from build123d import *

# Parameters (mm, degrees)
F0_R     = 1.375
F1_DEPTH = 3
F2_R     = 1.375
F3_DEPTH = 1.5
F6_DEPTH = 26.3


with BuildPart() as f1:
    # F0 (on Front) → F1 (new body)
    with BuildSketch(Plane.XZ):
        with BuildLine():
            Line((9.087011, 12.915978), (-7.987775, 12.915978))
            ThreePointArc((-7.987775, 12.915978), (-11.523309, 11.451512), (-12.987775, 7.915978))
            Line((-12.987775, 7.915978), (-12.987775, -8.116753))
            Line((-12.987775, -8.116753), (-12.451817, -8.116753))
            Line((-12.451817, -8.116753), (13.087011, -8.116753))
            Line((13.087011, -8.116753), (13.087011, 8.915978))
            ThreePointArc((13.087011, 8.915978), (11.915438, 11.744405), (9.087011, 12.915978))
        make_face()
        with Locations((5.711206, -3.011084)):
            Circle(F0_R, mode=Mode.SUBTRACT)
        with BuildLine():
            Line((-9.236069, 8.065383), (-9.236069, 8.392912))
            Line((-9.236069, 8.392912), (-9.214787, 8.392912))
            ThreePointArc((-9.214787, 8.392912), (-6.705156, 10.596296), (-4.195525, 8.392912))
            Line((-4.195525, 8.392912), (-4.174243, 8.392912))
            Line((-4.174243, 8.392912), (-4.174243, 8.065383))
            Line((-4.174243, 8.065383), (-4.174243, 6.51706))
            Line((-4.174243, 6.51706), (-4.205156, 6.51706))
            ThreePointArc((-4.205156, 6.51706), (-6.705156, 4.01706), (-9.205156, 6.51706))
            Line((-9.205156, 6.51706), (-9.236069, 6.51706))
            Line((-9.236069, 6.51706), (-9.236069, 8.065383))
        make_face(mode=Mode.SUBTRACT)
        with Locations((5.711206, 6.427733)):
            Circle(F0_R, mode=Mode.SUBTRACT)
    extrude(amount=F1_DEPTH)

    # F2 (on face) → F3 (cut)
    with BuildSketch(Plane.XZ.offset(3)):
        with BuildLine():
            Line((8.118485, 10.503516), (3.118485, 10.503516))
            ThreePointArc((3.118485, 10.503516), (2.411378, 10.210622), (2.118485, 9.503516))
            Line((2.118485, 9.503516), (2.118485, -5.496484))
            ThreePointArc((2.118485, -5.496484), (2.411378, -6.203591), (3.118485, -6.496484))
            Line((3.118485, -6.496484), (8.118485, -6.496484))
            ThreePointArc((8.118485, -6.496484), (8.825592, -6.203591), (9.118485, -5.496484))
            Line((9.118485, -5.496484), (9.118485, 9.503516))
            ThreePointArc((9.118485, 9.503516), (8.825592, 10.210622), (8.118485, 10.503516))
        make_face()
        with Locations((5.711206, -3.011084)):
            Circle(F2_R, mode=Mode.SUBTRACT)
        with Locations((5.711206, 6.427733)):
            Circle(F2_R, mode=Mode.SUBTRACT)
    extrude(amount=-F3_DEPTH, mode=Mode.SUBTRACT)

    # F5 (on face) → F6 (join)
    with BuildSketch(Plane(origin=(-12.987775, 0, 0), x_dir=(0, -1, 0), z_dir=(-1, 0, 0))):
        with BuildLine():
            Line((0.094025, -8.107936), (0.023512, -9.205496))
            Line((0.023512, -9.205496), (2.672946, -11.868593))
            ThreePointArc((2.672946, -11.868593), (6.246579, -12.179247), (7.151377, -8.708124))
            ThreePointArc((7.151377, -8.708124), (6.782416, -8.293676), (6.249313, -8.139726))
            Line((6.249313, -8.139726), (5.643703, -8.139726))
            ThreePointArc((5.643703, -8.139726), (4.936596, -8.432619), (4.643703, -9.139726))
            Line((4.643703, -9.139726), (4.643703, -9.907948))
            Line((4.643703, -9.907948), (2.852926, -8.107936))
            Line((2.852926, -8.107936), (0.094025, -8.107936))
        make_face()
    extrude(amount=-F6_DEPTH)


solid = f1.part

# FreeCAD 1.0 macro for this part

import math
import FreeCAD as App
import Part
import Sketcher

V = App.Vector
Q = App.Units.Quantity

doc = App.newDocument("Part")
body = doc.addObject("PartDesign::Body", "Body")

# Sketch on XZ plane
sketch1 = body.newObject("Sketcher::SketchObject", "Sketch")
sketch1.AttachmentSupport = (doc.getObject("XZ_Plane"), [""])
sketch1.MapMode = "FlatFace"
sketch1.addGeometry([
    Part.LineSegment(V(9.087, 12.916, 0), V(-7.988, 12.916, 0)),  # 0
    Part.ArcOfCircle(Part.Circle(V(-7.988, 7.916, 0), V(0, 0, 1), 5), math.radians(90), math.radians(180)),  # 1
    Part.LineSegment(V(-12.988, 7.916, 0), V(-12.988, -8.117, 0)),  # 2
    Part.LineSegment(V(-12.988, -8.117, 0), V(13.087, -8.117, 0)),  # 3
    Part.LineSegment(V(13.087, -8.117, 0), V(13.087, 8.916, 0)),  # 4
    Part.ArcOfCircle(Part.Circle(V(9.087, 8.916, 0), V(0, 0, 1), 4), math.radians(0), math.radians(90)),  # 5
    Part.Circle(V(5.711, -3.011, 0), V(0, 0, 1), 1.375),  # 6
    Part.LineSegment(V(-9.236, 6.517, 0), V(-9.236, 8.393, 0)),  # 7
    Part.LineSegment(V(-9.236, 8.393, 0), V(-9.215, 8.393, 0)),  # 8
    Part.ArcOfCircle(Part.Circle(V(-6.705, 8.065, 0), V(0, 0, 1), 2.531), math.radians(7), math.radians(173)),  # 9
    Part.LineSegment(V(-4.196, 8.393, 0), V(-4.174, 8.393, 0)),  # 10
    Part.LineSegment(V(-4.174, 8.393, 0), V(-4.174, 6.517, 0)),  # 11
    Part.LineSegment(V(-4.174, 6.517, 0), V(-4.205, 6.517, 0)),  # 12
    Part.ArcOfCircle(Part.Circle(V(-6.705, 6.517, 0), V(0, 0, 1), 2.5), math.radians(180), math.radians(360)),  # 13
    Part.LineSegment(V(-9.205, 6.517, 0), V(-9.236, 6.517, 0)),  # 14
    Part.Circle(V(5.711, 6.428, 0), V(0, 0, 1), 1.375),  # 15
], False)
sketch1.addConstraint([
    Sketcher.Constraint("Tangent", 0, 2, 1, 1),
    Sketcher.Constraint("Tangent", 1, 2, 2, 1),
    Sketcher.Constraint("Coincident", 2, 2, 3, 1),
    Sketcher.Constraint("Coincident", 3, 2, 4, 1),
    Sketcher.Constraint("Tangent", 4, 2, 5, 1),
    Sketcher.Constraint("Tangent", 5, 2, 0, 1),
    Sketcher.Constraint("Coincident", 7, 2, 8, 1),
    Sketcher.Constraint("Coincident", 8, 2, 9, 2),
    Sketcher.Constraint("Coincident", 9, 1, 10, 1),
    Sketcher.Constraint("Coincident", 10, 2, 11, 1),
    Sketcher.Constraint("Coincident", 11, 2, 12, 1),
    Sketcher.Constraint("Coincident", 12, 2, 13, 2),
    Sketcher.Constraint("Coincident", 13, 1, 14, 1),
    Sketcher.Constraint("Coincident", 14, 2, 7, 1),
    Sketcher.Constraint("Horizontal", 0),
    Sketcher.Constraint("Vertical", 2),
    Sketcher.Constraint("Horizontal", 3),
    Sketcher.Constraint("Vertical", 4),
    Sketcher.Constraint("Vertical", 7),
    Sketcher.Constraint("Horizontal", 8),
    Sketcher.Constraint("Horizontal", 10),
    Sketcher.Constraint("Vertical", 11),
    Sketcher.Constraint("Horizontal", 12),
    Sketcher.Constraint("Horizontal", 14),
    Sketcher.Constraint("Equal", 6, 15),
    Sketcher.Constraint("Horizontal", 8, 2, 9, 1),
    Sketcher.Constraint("Horizontal", 13, 3, 11, 2),
    Sketcher.Constraint("Horizontal", 12, 2, 13, 1),
    Sketcher.Constraint("Vertical", 9, 3, 13, 3),
    Sketcher.Constraint("Vertical", 6, 3, 15, 3),
    Sketcher.Constraint("Equal", 8, 10),
    Sketcher.Constraint("Radius", 1, Q("5 mm")),
    Sketcher.Constraint("Radius", 5, Q("4 mm")),
    Sketcher.Constraint("Radius", 13, Q("2.5 mm")),
    Sketcher.Constraint("Diameter", 6, Q("2.75 mm")),
    Sketcher.Constraint("Radius", 9, Q("2.530914 mm")),
    Sketcher.Constraint("DistanceY", 2, 2, 2, 1, Q("16.032731 mm")),
    Sketcher.Constraint("DistanceX", 0, 2, 0, 1, Q("17.074786 mm")),
    Sketcher.Constraint("DistanceX", 8, 1, 8, 2, Q("0.021282 mm")),
    Sketcher.Constraint("DistanceX", 12, 2, 12, 1, Q("0.030913 mm")),
    Sketcher.Constraint("DistanceY", 7, 1, 7, 2, Q("1.875852 mm")),
    Sketcher.Constraint("DistanceY", -1, 1, 1, 3, Q("7.915978 mm")),
    Sketcher.Constraint("DistanceX", -1, 1, 5, 3, Q("9.087011 mm")),
    Sketcher.Constraint("DistanceY", -1, 1, 13, 3, Q("6.51706 mm")),
    Sketcher.Constraint("DistanceX", 7, 2, -1, 1, Q("9.236069 mm")),
    Sketcher.Constraint("DistanceY", 6, 3, 5, 3, Q("11.927062 mm")),
    Sketcher.Constraint("DistanceX", 1, 3, 6, 3, Q("13.698981 mm")),
    Sketcher.Constraint("DistanceY", 15, 3, 9, 3, Q("1.637649 mm")),
])
pad1 = body.newObject("PartDesign::Pad", "Pad")
pad1.Profile = sketch1
pad1.Length = 3

# Sketch on XZ plane
sketch2 = body.newObject("Sketcher::SketchObject", "Sketch001")
sketch2.AttachmentSupport = (doc.getObject("XZ_Plane"), [""])
sketch2.MapMode = "FlatFace"
sketch2.AttachmentOffset = App.Placement(V(0, 0, 3), App.Rotation())
sketch2.addGeometry([
    Part.LineSegment(V(8.1, 10.5, 0), V(3.1, 10.5, 0)),  # 0
    Part.ArcOfCircle(Part.Circle(V(3.1, 9.5, 0), V(0, 0, 1), 1), math.radians(90), math.radians(180)),  # 1
    Part.LineSegment(V(2.1, 9.5, 0), V(2.1, -5.5, 0)),  # 2
    Part.ArcOfCircle(Part.Circle(V(3.1, -5.5, 0), V(0, 0, 1), 1), math.radians(180), math.radians(270)),  # 3
    Part.LineSegment(V(3.1, -6.5, 0), V(8.1, -6.5, 0)),  # 4
    Part.ArcOfCircle(Part.Circle(V(8.1, -5.5, 0), V(0, 0, 1), 1), math.radians(-90), math.radians(0)),  # 5
    Part.LineSegment(V(9.1, -5.5, 0), V(9.1, 9.5, 0)),  # 6
    Part.ArcOfCircle(Part.Circle(V(8.1, 9.5, 0), V(0, 0, 1), 1), math.radians(0), math.radians(90)),  # 7
    Part.Circle(V(5.7, -3, 0), V(0, 0, 1), 1.4),  # 8
    Part.Circle(V(5.7, 6.4, 0), V(0, 0, 1), 1.4),  # 9
], False)
sketch2.addConstraint([
    Sketcher.Constraint("Tangent", 0, 2, 1, 1),
    Sketcher.Constraint("Tangent", 1, 2, 2, 1),
    Sketcher.Constraint("Tangent", 2, 2, 3, 1),
    Sketcher.Constraint("Tangent", 3, 2, 4, 1),
    Sketcher.Constraint("Tangent", 4, 2, 5, 1),
    Sketcher.Constraint("Tangent", 5, 2, 6, 1),
    Sketcher.Constraint("Tangent", 6, 2, 7, 1),
    Sketcher.Constraint("Tangent", 7, 2, 0, 1),
    Sketcher.Constraint("Horizontal", 0),
    Sketcher.Constraint("Vertical", 2),
    Sketcher.Constraint("Horizontal", 4),
    Sketcher.Constraint("Vertical", 6),
    Sketcher.Constraint("Equal", 1, 3),
    Sketcher.Constraint("Equal", 3, 5),
    Sketcher.Constraint("Equal", 5, 7),
    Sketcher.Constraint("Equal", 8, 9),
    Sketcher.Constraint("Vertical", 8, 3, 9, 3),
    Sketcher.Constraint("Radius", 1, Q("1.000001 mm")),
    Sketcher.Constraint("Diameter", 8, Q("2.75 mm")),
    Sketcher.Constraint("DistanceX", 0, 2, 0, 1, Q("5 mm")),
    Sketcher.Constraint("DistanceY", 2, 2, 2, 1, Q("15 mm")),
    Sketcher.Constraint("DistanceY", 5, 3, 8, 3, Q("2.485401 mm")),
    Sketcher.Constraint("DistanceX", 8, 3, 5, 3, Q("2.40728 mm")),
    Sketcher.Constraint("DistanceX", -1, 1, 1, 3, Q("3.118486 mm")),
    Sketcher.Constraint("DistanceY", -1, 1, 1, 3, Q("9.503515 mm")),
    Sketcher.Constraint("DistanceY", -1, 1, 9, 3, Q("6.427733 mm")),
])
pocket1 = body.newObject("PartDesign::Pocket", "Pocket")
pocket1.Profile = sketch2
pocket1.Length = 1.5

# Sketch on YZ plane
sketch3 = body.newObject("Sketcher::SketchObject", "Sketch002")
sketch3.AttachmentSupport = (doc.getObject("YZ_Plane"), [""])
sketch3.MapMode = "FlatFace"
sketch3.AttachmentOffset = App.Placement(V(0, 0, -12.987775), App.Rotation())
sketch3.addGeometry([
    Part.LineSegment(V(-0.1, -8.1, 0), V(0, -9.2, 0)),  # 0
    Part.LineSegment(V(0, -9.2, 0), V(-2.7, -11.9, 0)),  # 1
    Part.ArcOfCircle(Part.Circle(V(-4.6, -9.9, 0), V(0, 0, 1), 2.8), math.radians(154), math.radians(315)),  # 2
    Part.ArcOfCircle(Part.Circle(V(-6.2, -9.1, 0), V(0, 0, 1), 1), math.radians(90), math.radians(154)),  # 3
    Part.LineSegment(V(-6.2, -8.1, 0), V(-5.6, -8.1, 0)),  # 4
    Part.ArcOfCircle(Part.Circle(V(-5.6, -9.1, 0), V(0, 0, 1), 1), math.radians(0), math.radians(90)),  # 5
    Part.LineSegment(V(-4.6, -9.1, 0), V(-4.6, -9.9, 0)),  # 6
    Part.LineSegment(V(-4.6, -9.9, 0), V(-2.9, -8.1, 0)),  # 7
    Part.LineSegment(V(-2.9, -8.1, 0), V(-0.1, -8.1, 0)),  # 8
], False)
sketch3.addConstraint([
    Sketcher.Constraint("Coincident", 0, 2, 1, 1),
    Sketcher.Constraint("Tangent", 1, 2, 2, 2),
    Sketcher.Constraint("Tangent", 2, 1, 3, 2),
    Sketcher.Constraint("Tangent", 3, 1, 4, 1),
    Sketcher.Constraint("Tangent", 4, 2, 5, 2),
    Sketcher.Constraint("Tangent", 5, 1, 6, 1),
    Sketcher.Constraint("Coincident", 6, 2, 7, 1),
    Sketcher.Constraint("Coincident", 7, 2, 8, 1),
    Sketcher.Constraint("Coincident", 8, 2, 0, 1),
    Sketcher.Constraint("Horizontal", 4),
    Sketcher.Constraint("Vertical", 6),
    Sketcher.Constraint("Horizontal", 8),
    Sketcher.Constraint("Coincident", 6, 2, 2, 3),
    Sketcher.Constraint("Equal", 3, 5),
    Sketcher.Constraint("Parallel", 1, 7),
    Sketcher.Constraint("Radius", 3, Q("1.000001 mm")),
    Sketcher.Constraint("Radius", 2, Q("2.77993 mm")),
    Sketcher.Constraint("DistanceX", 8, 1, 8, 2, Q("2.758901 mm")),
    Sketcher.Constraint("DistanceX", 4, 1, 4, 2, Q("0.60561 mm")),
    Sketcher.Constraint("DistanceX", 3, 3, 0, 2, Q("6.2258 mm")),
    Sketcher.Constraint("Distance", 1, Q("3.756539 mm")),
    Sketcher.Constraint("Distance", 7, Q("2.53908 mm")),
    Sketcher.Constraint("DistanceY", 2, 3, -1, 1, Q("9.907949 mm")),
    Sketcher.Constraint("DistanceX", 2, 3, -1, 1, Q("4.643703 mm")),
])
pad2 = body.newObject("PartDesign::Pad", "Pad001")
pad2.Profile = sketch3
pad2.Length = 26.3

doc.recompute()
